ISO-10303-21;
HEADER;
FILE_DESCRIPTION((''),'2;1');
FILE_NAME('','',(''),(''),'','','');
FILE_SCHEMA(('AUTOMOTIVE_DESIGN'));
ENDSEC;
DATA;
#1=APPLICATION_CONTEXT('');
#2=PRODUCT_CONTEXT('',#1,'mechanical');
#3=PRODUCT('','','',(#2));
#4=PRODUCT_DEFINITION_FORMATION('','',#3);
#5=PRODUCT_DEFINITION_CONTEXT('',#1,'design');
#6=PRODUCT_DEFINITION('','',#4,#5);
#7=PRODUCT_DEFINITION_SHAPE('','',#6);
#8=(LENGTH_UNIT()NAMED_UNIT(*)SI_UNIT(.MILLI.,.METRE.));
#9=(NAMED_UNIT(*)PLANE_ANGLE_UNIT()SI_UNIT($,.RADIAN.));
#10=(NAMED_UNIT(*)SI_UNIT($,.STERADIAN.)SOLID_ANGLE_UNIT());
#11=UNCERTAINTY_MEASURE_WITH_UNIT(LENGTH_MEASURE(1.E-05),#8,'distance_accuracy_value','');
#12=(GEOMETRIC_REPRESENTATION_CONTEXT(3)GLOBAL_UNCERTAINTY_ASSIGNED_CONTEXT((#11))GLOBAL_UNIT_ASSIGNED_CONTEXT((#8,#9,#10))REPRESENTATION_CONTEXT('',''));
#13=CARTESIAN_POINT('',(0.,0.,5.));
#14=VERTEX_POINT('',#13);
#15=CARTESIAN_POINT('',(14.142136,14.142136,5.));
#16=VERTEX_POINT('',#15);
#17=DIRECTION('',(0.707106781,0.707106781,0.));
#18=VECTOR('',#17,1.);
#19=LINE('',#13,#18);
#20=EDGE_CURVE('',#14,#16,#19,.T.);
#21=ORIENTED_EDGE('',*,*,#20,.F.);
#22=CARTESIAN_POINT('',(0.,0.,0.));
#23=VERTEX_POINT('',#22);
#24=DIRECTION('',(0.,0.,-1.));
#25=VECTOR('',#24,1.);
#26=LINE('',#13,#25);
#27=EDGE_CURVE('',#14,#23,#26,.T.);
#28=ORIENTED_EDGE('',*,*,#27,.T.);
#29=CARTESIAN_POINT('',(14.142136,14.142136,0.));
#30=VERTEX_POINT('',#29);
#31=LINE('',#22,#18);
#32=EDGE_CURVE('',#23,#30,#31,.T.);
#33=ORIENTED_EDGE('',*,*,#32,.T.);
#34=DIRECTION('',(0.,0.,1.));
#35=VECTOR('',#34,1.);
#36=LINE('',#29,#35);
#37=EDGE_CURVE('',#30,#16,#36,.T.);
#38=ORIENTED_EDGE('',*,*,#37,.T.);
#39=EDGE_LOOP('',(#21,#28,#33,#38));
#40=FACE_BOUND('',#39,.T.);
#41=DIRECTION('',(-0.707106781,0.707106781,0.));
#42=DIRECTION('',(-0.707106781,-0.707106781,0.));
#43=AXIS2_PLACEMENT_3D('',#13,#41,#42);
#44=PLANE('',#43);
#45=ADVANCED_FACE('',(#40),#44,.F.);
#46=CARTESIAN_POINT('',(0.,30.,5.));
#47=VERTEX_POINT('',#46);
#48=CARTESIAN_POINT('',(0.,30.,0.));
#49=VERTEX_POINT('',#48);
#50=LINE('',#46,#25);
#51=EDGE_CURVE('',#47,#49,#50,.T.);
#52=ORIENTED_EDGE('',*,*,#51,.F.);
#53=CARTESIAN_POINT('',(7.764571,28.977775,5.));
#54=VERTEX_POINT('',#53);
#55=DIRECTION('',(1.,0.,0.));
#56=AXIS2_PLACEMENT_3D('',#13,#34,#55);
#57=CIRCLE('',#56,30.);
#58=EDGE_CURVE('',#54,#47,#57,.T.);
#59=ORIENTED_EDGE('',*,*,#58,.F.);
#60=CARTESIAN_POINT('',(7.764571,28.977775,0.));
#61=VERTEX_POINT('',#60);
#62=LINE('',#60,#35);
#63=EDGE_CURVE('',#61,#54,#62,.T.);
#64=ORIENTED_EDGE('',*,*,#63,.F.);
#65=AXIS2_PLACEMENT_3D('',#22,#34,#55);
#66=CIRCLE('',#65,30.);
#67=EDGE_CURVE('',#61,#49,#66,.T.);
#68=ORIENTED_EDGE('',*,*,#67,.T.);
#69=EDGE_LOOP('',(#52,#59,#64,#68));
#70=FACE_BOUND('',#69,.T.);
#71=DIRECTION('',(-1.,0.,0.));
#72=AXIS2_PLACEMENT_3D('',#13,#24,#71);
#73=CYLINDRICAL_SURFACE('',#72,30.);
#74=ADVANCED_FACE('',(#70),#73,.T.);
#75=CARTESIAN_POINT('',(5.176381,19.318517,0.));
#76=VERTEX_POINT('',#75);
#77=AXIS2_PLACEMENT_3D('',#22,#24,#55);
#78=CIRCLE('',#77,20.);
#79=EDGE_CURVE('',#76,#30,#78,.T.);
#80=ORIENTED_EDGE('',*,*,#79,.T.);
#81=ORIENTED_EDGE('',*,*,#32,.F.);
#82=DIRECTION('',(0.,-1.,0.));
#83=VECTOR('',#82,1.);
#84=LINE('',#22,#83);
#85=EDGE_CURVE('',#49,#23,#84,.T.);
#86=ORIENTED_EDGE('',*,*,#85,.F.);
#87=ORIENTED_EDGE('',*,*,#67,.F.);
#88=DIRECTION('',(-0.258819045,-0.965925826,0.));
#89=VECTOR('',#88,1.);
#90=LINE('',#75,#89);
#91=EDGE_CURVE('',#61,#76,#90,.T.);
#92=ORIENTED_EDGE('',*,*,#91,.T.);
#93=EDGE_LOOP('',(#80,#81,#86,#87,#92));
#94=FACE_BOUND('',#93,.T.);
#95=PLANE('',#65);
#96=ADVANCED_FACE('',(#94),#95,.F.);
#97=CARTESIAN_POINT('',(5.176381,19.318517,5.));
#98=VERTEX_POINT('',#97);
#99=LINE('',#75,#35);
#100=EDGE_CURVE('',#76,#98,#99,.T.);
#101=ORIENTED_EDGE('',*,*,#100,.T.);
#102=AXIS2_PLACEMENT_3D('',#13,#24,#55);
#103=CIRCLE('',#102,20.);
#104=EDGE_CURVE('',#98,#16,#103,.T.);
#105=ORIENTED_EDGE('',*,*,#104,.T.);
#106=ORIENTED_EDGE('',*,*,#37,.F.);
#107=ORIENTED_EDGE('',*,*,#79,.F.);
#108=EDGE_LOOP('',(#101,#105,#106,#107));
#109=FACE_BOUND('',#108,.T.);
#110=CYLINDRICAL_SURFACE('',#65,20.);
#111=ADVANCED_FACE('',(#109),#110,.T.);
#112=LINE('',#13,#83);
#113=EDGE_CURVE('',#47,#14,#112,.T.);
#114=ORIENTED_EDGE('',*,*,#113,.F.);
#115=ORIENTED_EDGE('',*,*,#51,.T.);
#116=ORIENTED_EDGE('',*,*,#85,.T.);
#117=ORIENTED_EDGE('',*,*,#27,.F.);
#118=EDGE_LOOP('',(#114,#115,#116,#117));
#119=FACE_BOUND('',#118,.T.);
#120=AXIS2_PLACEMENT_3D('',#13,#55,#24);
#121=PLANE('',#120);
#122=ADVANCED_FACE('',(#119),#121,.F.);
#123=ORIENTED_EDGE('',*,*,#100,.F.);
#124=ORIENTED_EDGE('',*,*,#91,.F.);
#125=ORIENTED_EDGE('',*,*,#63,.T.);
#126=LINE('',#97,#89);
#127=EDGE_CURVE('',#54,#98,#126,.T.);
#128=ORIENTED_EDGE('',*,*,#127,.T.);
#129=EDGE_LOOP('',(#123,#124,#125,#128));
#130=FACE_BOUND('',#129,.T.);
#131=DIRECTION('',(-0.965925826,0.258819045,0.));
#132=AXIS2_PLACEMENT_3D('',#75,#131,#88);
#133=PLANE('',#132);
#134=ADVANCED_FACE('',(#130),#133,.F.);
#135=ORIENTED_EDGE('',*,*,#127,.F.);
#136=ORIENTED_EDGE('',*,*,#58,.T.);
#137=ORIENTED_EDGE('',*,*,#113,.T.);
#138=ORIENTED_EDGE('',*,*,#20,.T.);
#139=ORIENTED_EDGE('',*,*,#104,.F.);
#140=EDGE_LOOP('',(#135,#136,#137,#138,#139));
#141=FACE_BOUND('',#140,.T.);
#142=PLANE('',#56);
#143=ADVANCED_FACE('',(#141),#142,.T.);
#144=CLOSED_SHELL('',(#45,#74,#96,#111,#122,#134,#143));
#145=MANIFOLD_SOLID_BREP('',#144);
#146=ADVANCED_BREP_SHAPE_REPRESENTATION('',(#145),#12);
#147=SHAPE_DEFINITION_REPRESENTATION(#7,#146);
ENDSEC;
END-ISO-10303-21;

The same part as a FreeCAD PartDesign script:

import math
import FreeCAD as App
import Part
import Sketcher
Q = App.Units.Quantity

doc = App.newDocument("Part")
body = doc.addObject("PartDesign::Body", "Body")

# Sketch on XY plane
sketch1 = body.newObject("Sketcher::SketchObject", "Sketch")
sketch1.AttachmentSupport = (doc.getObject("XY_Plane"), [""])
sketch1.MapMode = "FlatFace"
sketch1.addGeometry([
    Part.LineSegment(App.Vector(0, 30, 0), App.Vector(0, 0, 0)),
    Part.LineSegment(App.Vector(0, 0, 0), App.Vector(21.213203, 21.213203, 0)),
    Part.ArcOfCircle(Part.Circle(App.Vector(0, 0, 0), App.Vector(0, 0, 1), 30), math.radians(45), math.radians(90)),
], False)
sketch1.addConstraint([
    Sketcher.Constraint("Coincident", 0, 2, 1, 1),
    Sketcher.Constraint("Coincident", 1, 2, 2, 1),
    Sketcher.Constraint("Coincident", 2, 2, 0, 1),
    Sketcher.Constraint("Vertical", 0),
    Sketcher.Constraint("Coincident", 2, 3, -1, 1),
    Sketcher.Constraint("Coincident", 0, 2, -1, 1),
    Sketcher.Constraint("Radius", 2, Q("30 mm")),
    Sketcher.Constraint("Angle", 1, Q("45 deg")),
])
pad1 = body.newObject("PartDesign::Pad", "Pad")
pad1.Profile = sketch1
pad1.Length = 5

# Sketch on XY plane
sketch2 = body.newObject("Sketcher::SketchObject", "Sketch001")
sketch2.AttachmentSupport = (doc.getObject("XY_Plane"), [""])
sketch2.MapMode = "FlatFace"
sketch2.AttachmentOffset = App.Placement(App.Vector(0, 0, 5), App.Rotation())
sketch2.addGeometry([
    Part.LineSegment(App.Vector(14.142136, 14.142136, 0), App.Vector(21.213203, 21.213203, 0)),
    Part.ArcOfCircle(Part.Circle(App.Vector(0, 0, 0), App.Vector(0, 0, 1), 30), math.radians(45), math.radians(75)),
    Part.LineSegment(App.Vector(7.764571, 28.977775, 0), App.Vector(5.176381, 19.318517, 0)),
    Part.ArcOfCircle(Part.Circle(App.Vector(0, 0, 0), App.Vector(0, 0, 1), 20), math.radians(45), math.radians(75)),
], False)
sketch2.addConstraint([
    Sketcher.Constraint("Coincident", 0, 2, 1, 1),
    Sketcher.Constraint("Coincident", 1, 2, 2, 1),
    Sketcher.Constraint("Coincident", 2, 2, 3, 2),
    Sketcher.Constraint("Coincident", 3, 1, 0, 1),
    Sketcher.Constraint("Coincident", 1, 3, -1, 1),
    Sketcher.Constraint("Coincident", 3, 3, -1, 1),
    Sketcher.Constraint("Radius", 1, Q("30 mm")),
    Sketcher.Constraint("Radius", 3, Q("20 mm")),
    Sketcher.Constraint("Angle", 0, Q("45 deg")),
    Sketcher.Constraint("Angle", 2, Q("-105 deg")),
    Sketcher.Constraint("DistanceX", -1, 1, 1, 2, Q("7.764571 mm")),
    Sketcher.Constraint("DistanceY", 0, 2, 1, 2, Q("7.764571 mm")),
])
pocket1 = body.newObject("PartDesign::Pocket", "Pocket")
pocket1.Profile = sketch2
pocket1.Type = "ThroughAll"

doc.recompute()
